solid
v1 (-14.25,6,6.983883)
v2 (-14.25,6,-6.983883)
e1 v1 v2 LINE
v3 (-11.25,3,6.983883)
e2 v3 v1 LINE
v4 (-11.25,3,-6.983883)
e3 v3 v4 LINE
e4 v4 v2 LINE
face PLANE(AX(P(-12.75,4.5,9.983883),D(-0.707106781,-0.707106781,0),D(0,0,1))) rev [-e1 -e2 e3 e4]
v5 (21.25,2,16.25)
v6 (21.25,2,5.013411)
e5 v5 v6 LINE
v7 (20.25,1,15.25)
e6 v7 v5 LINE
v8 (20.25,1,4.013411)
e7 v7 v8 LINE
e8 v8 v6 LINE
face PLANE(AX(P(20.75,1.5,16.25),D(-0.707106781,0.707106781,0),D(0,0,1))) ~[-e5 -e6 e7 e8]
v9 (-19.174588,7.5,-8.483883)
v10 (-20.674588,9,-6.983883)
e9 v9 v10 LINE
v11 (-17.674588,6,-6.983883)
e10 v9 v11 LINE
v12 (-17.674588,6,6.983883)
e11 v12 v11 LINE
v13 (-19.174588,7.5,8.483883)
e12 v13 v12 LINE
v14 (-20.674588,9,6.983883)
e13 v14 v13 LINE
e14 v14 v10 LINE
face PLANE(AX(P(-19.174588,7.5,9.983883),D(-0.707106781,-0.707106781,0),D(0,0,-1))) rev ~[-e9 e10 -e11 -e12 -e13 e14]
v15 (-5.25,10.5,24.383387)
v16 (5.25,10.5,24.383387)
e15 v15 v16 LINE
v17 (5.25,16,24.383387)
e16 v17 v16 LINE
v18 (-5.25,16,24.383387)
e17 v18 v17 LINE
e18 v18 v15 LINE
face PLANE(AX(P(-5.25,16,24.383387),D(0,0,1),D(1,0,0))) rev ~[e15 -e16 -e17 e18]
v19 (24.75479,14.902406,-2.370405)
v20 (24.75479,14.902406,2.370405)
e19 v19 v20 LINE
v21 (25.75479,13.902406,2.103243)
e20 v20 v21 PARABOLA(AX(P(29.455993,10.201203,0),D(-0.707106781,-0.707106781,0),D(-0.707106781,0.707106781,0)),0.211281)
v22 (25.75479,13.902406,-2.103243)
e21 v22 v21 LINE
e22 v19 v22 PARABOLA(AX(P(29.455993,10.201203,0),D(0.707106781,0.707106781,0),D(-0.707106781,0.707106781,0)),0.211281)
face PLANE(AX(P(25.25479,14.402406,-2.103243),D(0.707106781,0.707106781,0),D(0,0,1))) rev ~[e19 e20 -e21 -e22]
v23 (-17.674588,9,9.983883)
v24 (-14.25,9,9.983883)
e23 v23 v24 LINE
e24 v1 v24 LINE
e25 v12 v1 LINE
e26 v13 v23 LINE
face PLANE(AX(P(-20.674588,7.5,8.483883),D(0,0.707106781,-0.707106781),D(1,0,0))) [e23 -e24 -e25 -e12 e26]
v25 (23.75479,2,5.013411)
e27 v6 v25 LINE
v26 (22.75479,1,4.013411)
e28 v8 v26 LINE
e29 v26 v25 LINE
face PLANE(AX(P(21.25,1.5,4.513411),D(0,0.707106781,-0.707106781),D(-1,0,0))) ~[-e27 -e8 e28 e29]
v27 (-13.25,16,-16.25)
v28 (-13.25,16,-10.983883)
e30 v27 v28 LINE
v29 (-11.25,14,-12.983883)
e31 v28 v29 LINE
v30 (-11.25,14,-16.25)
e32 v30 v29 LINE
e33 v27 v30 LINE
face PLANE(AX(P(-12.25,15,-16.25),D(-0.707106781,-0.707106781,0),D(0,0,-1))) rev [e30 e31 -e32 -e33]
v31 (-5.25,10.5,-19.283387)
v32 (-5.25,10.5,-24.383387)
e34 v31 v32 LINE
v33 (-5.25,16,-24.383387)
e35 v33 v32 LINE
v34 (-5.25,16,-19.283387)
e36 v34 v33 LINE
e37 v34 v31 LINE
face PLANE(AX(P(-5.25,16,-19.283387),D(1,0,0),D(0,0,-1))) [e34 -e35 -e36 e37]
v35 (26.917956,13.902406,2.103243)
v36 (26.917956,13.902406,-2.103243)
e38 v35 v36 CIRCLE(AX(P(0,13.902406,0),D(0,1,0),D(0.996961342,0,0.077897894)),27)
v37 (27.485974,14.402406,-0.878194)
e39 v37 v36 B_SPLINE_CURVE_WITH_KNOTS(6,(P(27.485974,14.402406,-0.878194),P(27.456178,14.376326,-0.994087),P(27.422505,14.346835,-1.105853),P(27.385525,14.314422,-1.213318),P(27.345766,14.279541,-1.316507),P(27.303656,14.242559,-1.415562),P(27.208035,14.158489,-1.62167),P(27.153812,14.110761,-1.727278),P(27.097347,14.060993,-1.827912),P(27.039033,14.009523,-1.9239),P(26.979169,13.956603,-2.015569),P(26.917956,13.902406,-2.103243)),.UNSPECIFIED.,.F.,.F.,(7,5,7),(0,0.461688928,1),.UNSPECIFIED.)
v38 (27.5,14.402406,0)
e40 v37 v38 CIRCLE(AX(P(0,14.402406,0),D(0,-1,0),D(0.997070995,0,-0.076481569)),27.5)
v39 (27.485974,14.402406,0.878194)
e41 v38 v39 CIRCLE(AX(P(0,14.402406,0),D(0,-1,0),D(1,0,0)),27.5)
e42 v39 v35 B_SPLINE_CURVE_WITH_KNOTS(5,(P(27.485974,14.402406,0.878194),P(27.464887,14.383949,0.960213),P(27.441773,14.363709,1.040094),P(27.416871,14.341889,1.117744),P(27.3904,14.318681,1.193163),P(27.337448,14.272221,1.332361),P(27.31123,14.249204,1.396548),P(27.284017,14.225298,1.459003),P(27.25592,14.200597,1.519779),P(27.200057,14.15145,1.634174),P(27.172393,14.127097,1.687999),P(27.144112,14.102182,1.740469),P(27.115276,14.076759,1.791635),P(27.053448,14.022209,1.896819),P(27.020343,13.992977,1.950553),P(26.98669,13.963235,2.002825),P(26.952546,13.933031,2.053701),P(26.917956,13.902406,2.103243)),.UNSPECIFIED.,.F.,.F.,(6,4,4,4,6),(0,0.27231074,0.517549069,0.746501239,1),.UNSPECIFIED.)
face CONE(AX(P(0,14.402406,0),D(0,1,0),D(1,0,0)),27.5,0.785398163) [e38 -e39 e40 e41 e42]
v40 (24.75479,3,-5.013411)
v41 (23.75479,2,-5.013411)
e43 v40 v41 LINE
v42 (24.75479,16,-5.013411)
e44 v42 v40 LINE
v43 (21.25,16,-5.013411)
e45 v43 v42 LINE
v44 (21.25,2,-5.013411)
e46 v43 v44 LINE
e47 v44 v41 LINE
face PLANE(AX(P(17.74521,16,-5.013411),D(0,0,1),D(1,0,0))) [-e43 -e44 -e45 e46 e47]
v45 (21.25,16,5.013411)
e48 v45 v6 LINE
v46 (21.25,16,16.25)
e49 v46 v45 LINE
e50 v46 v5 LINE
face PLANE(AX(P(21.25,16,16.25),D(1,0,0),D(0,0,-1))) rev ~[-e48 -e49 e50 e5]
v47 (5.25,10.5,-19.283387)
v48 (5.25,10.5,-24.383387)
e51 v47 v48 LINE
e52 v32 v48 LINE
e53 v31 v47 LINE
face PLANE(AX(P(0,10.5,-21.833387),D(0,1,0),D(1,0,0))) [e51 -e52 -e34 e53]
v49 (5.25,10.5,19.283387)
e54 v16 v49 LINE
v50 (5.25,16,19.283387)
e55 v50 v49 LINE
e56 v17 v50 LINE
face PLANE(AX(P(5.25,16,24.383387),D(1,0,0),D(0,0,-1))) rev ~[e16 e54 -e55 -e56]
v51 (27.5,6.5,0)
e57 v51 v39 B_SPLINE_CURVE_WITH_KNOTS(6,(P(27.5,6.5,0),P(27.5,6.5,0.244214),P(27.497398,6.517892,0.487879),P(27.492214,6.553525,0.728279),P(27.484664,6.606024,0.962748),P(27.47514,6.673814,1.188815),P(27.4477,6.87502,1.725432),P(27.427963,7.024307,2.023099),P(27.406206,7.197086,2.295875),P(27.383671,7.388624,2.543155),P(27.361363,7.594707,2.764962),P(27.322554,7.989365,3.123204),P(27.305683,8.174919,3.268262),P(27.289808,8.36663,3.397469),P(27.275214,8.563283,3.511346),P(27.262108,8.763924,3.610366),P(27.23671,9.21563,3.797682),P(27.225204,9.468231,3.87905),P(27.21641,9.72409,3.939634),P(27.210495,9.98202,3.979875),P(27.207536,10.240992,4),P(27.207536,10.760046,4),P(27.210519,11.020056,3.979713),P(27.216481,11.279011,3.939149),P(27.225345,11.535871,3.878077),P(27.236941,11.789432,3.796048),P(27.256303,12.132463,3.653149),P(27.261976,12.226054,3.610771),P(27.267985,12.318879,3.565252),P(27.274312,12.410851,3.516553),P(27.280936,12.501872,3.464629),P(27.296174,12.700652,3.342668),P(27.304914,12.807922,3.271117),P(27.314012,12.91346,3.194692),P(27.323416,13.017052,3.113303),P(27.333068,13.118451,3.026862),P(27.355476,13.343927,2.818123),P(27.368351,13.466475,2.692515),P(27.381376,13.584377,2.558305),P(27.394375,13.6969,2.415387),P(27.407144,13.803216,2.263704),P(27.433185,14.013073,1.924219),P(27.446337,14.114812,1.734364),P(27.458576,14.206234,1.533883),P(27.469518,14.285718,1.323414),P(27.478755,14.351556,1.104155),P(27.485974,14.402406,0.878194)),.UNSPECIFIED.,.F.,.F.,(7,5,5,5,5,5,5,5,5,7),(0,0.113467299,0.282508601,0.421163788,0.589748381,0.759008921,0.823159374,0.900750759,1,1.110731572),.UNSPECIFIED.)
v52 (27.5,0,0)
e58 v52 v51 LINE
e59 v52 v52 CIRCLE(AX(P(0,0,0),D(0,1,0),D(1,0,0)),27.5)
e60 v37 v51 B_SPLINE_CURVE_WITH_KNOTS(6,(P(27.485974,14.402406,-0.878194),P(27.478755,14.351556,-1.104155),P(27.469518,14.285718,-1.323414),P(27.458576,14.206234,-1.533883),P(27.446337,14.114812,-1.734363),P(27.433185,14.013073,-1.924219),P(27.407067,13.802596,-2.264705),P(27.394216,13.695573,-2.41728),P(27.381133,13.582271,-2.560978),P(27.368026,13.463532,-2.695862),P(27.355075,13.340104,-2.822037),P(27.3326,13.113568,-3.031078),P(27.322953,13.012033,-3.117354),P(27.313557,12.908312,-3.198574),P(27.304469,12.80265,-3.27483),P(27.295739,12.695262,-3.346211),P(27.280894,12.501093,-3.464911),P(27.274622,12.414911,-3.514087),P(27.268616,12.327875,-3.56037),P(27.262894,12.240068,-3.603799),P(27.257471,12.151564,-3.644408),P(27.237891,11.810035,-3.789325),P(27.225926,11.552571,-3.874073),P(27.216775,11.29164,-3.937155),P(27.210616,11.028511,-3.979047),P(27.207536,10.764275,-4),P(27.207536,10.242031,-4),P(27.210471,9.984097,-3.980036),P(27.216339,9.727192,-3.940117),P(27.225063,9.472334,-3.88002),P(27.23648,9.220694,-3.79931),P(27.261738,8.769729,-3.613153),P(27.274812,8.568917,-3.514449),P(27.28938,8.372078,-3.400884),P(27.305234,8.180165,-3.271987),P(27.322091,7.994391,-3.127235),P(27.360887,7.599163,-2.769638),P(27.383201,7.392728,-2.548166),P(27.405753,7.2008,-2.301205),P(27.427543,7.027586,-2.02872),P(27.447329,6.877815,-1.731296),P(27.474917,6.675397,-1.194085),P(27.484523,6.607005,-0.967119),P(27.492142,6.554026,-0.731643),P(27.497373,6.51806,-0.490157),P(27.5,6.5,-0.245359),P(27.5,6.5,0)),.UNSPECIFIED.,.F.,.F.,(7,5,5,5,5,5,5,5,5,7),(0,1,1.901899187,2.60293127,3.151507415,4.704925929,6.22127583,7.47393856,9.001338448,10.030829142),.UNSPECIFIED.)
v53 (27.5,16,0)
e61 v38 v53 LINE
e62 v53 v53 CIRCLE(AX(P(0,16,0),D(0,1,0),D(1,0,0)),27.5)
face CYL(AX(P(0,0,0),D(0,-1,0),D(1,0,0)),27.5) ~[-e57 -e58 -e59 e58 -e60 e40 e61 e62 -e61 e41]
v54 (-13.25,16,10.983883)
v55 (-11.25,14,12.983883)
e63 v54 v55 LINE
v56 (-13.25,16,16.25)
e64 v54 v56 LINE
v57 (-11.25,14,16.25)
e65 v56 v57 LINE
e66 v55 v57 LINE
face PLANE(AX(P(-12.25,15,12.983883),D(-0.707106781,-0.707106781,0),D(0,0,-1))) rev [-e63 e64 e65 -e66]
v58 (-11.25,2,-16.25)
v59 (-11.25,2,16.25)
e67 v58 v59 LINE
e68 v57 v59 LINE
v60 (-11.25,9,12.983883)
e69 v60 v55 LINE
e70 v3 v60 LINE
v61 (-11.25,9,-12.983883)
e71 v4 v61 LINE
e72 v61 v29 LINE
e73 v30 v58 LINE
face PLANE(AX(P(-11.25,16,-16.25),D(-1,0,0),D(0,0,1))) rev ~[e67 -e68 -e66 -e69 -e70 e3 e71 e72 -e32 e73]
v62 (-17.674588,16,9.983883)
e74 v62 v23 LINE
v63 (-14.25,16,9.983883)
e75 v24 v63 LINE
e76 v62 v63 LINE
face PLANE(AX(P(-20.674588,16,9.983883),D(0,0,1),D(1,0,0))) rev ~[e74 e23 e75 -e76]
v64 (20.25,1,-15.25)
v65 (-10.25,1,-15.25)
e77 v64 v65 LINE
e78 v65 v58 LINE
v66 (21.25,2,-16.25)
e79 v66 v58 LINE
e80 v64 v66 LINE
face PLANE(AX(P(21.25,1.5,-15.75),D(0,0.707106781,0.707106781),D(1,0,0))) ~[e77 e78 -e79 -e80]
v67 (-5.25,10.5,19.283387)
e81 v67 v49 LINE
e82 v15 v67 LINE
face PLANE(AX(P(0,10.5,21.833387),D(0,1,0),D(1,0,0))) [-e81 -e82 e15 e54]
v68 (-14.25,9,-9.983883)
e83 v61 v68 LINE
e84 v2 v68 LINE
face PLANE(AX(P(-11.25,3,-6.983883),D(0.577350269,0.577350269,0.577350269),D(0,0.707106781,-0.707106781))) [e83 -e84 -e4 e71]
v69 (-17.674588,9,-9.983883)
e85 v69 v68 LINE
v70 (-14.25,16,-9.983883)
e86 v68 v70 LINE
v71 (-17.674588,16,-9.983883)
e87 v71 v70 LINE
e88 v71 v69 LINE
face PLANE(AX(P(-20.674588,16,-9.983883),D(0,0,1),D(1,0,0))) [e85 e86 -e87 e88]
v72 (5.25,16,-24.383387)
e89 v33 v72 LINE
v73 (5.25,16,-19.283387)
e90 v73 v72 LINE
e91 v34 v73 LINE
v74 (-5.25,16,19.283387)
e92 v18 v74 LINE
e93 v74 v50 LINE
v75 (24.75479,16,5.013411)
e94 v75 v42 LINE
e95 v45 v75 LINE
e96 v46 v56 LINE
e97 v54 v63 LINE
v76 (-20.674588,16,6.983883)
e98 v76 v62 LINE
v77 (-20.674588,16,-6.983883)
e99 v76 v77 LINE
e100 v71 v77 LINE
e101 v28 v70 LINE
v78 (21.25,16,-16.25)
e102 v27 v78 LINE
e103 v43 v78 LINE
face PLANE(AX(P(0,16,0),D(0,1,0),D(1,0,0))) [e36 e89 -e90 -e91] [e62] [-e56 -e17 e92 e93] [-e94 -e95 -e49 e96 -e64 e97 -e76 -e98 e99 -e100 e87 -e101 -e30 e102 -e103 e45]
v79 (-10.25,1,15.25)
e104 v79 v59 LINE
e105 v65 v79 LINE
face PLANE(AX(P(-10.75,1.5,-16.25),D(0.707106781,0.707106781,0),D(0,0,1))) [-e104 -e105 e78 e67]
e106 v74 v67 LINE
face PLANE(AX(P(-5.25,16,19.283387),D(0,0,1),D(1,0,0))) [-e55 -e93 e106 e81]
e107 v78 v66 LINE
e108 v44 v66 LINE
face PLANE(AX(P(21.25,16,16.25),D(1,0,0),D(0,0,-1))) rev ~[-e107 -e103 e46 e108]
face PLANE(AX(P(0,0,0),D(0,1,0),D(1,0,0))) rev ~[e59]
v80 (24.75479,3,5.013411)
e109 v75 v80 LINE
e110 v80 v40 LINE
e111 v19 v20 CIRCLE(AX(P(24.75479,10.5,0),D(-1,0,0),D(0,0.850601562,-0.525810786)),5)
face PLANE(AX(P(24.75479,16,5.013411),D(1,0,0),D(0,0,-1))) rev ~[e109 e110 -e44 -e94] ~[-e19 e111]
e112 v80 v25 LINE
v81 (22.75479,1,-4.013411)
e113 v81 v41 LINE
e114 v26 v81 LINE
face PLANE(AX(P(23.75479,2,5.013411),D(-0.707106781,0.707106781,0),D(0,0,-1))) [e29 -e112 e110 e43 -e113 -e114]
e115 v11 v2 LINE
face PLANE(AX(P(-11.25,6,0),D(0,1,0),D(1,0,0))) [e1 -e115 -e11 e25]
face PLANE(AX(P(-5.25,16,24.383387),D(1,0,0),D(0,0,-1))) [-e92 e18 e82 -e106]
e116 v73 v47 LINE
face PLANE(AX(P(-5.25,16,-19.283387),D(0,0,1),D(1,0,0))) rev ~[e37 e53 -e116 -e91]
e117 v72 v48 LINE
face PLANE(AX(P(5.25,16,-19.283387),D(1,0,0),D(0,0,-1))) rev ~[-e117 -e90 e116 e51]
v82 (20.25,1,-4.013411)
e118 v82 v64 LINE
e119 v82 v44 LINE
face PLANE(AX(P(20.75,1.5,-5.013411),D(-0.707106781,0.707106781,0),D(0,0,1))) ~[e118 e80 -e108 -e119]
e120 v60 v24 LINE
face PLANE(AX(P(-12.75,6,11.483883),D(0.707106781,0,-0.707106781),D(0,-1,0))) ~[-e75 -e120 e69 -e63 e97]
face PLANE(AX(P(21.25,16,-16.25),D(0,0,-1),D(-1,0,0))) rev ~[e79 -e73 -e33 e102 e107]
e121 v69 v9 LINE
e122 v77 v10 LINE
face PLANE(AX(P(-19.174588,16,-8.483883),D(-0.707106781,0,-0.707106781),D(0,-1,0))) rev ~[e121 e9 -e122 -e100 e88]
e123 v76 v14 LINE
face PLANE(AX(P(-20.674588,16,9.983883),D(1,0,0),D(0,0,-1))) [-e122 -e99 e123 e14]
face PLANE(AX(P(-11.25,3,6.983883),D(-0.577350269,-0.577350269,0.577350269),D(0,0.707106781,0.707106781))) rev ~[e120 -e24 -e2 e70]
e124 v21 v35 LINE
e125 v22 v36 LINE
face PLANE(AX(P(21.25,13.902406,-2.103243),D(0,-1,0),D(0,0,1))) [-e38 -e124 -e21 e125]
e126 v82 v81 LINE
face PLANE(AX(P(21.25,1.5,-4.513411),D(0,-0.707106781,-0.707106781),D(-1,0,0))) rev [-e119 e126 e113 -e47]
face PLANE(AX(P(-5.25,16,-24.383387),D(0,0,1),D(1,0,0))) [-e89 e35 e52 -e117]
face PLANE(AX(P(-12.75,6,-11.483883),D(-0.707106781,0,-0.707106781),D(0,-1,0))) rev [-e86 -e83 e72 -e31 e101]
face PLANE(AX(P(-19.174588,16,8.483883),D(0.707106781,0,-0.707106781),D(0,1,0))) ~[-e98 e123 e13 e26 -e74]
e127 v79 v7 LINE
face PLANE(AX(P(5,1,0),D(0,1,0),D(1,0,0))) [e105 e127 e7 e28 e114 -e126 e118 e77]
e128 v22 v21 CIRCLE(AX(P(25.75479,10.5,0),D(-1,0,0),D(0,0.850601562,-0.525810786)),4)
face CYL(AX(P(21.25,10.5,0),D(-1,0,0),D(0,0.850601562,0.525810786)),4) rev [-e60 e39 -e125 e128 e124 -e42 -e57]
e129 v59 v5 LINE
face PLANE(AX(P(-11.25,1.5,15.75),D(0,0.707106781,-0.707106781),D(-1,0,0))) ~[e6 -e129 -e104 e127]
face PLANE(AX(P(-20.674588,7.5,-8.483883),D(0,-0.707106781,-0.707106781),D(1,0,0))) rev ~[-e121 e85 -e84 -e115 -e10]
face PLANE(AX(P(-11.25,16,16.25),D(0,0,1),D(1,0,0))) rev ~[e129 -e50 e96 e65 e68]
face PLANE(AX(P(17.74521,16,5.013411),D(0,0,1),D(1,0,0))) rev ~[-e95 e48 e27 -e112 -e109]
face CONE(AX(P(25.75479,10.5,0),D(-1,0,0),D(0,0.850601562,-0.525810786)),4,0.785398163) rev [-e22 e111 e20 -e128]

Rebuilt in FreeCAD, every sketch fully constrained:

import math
import FreeCAD as App
import Part
import Sketcher


def edges_at(feature, points):
    """Names of the edges that pass closest to the given points."""
    edges = feature.Shape.Edges
    near = lambda p: min(range(len(edges)), key=lambda i: edges[i].distToShape(Part.Vertex(*p))[0])
    return sorted({f"Edge{near(p) + 1}" for p in points})

doc = App.newDocument("Part")
body = doc.addObject("PartDesign::Body", "Body")

sketch1 = body.newObject("Sketcher::SketchObject", "Sketch")
sketch1.AttachmentSupport = (doc.getObject("XZ_Plane"), [""])
sketch1.MapMode = "FlatFace"
sketch1.addGeometry(Part.Circle(App.Vector(0, 0, 0), App.Vector(0, 0, 1), 27.5), False)
sketch1.addConstraint([
    Sketcher.Constraint("Coincident", 0, 3, -1, 1),
    Sketcher.Constraint("Diameter", 0, 55.0),
])
pad1 = body.newObject("PartDesign::Pad", "Pad")
pad1.Profile = sketch1
pad1.Length = 16
pad1.Reversed = True

sketch2 = body.newObject("Sketcher::SketchObject", "Sketch001")
sketch2.AttachmentSupport = (doc.getObject("XZ_Plane"), [""])
sketch2.MapMode = "FlatFace"
sketch2.AttachmentOffset = App.Placement(App.Vector(0, 0, -16), App.Rotation())
sketch2.addGeometry([
    Part.LineSegment(App.Vector(-11.25, 16.25, 0), App.Vector(21.25, 16.25, 0)),
    Part.LineSegment(App.Vector(21.25, 16.25, 0), App.Vector(21.25, -16.25, 0)),
    Part.LineSegment(App.Vector(21.25, -16.25, 0), App.Vector(-11.25, -16.25, 0)),
    Part.LineSegment(App.Vector(-11.25, -16.25, 0), App.Vector(-11.25, 16.25, 0)),
], False)
sketch2.addConstraint([
    Sketcher.Constraint("Coincident", 0, 2, 1, 1),
    Sketcher.Constraint("Coincident", 1, 2, 2, 1),
    Sketcher.Constraint("Coincident", 2, 2, 3, 1),
    Sketcher.Constraint("Coincident", 3, 2, 0, 1),
    Sketcher.Constraint("Horizontal", 0),
    Sketcher.Constraint("Vertical", 1),
    Sketcher.Constraint("Horizontal", 2),
    Sketcher.Constraint("Vertical", 3),
    Sketcher.Constraint("Equal", 2, 1),
    Sketcher.Constraint("DistanceX", 0, 1, 0, 2, 32.5),
    Sketcher.Constraint("DistanceX", -1, 1, 0, 2, 21.25),
    Sketcher.Constraint("DistanceY", -1, 1, 0, 2, 16.25),
])
pocket1 = body.newObject("PartDesign::Pocket", "Pocket")
pocket1.Profile = sketch2
pocket1.Length = 15
pocket1.Reversed = True

sketch3 = body.newObject("Sketcher::SketchObject", "Sketch002")
sketch3.AttachmentSupport = (doc.getObject("YZ_Plane"), [""])
sketch3.MapMode = "FlatFace"
sketch3.AttachmentOffset = App.Placement(App.Vector(0, 0, 21.25), App.Rotation())
sketch3.addGeometry([
    Part.LineSegment(App.Vector(13.902406, 2.103243, 0), App.Vector(13.902406, -2.103243, 0)),
    Part.ArcOfCircle(Part.Circle(App.Vector(10.5, 0, 0), App.Vector(0, 0, 1), 4), math.radians(31.722841), math.radians(328.277159)),
], False)
sketch3.addConstraint([
    Sketcher.Constraint("Coincident", 0, 1, 1, 1),
    Sketcher.Constraint("Coincident", 1, 2, 0, 2),
    Sketcher.Constraint("Vertical", 0),
    Sketcher.Constraint("PointOnObject", 1, 3, -1),
    Sketcher.Constraint("Radius", 1, 4.0),
    Sketcher.Constraint("DistanceX", -1, 1, 1, 3, 10.5),
    Sketcher.Constraint("DistanceY", 0, 2, 0, 1, 4.206486),
])
pocket2 = body.newObject("PartDesign::Pocket", "Pocket001")
pocket2.Profile = sketch3
pocket2.Length = 15
pocket2.Reversed = True

sketch4 = body.newObject("Sketcher::SketchObject", "Sketch003")
sketch4.AttachmentSupport = (doc.getObject("XZ_Plane"), [""])
sketch4.MapMode = "FlatFace"
sketch4.AttachmentOffset = App.Placement(App.Vector(0, 0, -16), App.Rotation())
sketch4.addGeometry([
    Part.LineSegment(App.Vector(-20.674588, -9.983883, 0), App.Vector(-20.674588, 9.983883, 0)),
    Part.LineSegment(App.Vector(-20.674588, 9.983883, 0), App.Vector(-1.825412, 9.983883, 0)),
    Part.LineSegment(App.Vector(-1.825412, 9.983883, 0), App.Vector(-1.825412, -9.983883, 0)),
    Part.LineSegment(App.Vector(-1.825412, -9.983883, 0), App.Vector(-20.674588, -9.983883, 0)),
], False)
sketch4.addConstraint([
    Sketcher.Constraint("Coincident", 0, 2, 1, 1),
    Sketcher.Constraint("Coincident", 1, 2, 2, 1),
    Sketcher.Constraint("Coincident", 2, 2, 3, 1),
    Sketcher.Constraint("Coincident", 3, 2, 0, 1),
    Sketcher.Constraint("Vertical", 0),
    Sketcher.Constraint("Horizontal", 1),
    Sketcher.Constraint("Vertical", 2),
    Sketcher.Constraint("Horizontal", 3),
    Sketcher.Constraint("DistanceX", 1, 1, 1, 2, 18.849177),
    Sketcher.Constraint("DistanceY", 0, 1, 0, 2, 19.967767),
    Sketcher.Constraint("DistanceX", 0, 2, -1, 1, 20.674588),
    Sketcher.Constraint("DistanceY", -1, 1, 0, 2, 9.983883),
])
pocket3 = body.newObject("PartDesign::Pocket", "Pocket002")
pocket3.Profile = sketch4
pocket3.Length = 10
pocket3.Reversed = True
doc.recompute()

chamfer = body.newObject("PartDesign::Chamfer", "Chamfer")
chamfer.Base = (pocket3, edges_at(pocket3, [
    (-11.25, 6, 0),
    (-11.25, 11, -9.984),
    (-11.25, 11, 9.984),
    (-15.962, 6, 9.984),
    (-15.962, 6, -9.984),
    (-20.675, 6, 0),
]))
chamfer.Size = 3
doc.recompute()

chamfer2 = body.newObject("PartDesign::Chamfer", "Chamfer001")
chamfer2.Base = (chamfer, edges_at(chamfer, [(-20.675, 12.5, 9.984), (-20.675, 12.5, -9.984)]))
chamfer2.Size = 3

sketch5 = body.newObject("Sketcher::SketchObject", "Sketch004")
sketch5.AttachmentSupport = (doc.getObject("XZ_Plane"), [""])
sketch5.MapMode = "FlatFace"
sketch5.AttachmentOffset = App.Placement(App.Vector(0, 0, -16), App.Rotation())
sketch5.addGeometry([
    Part.LineSegment(App.Vector(17.74521, -5.013411, 0), App.Vector(17.74521, 5.013411, 0)),
    Part.LineSegment(App.Vector(17.74521, 5.013411, 0), App.Vector(24.75479, 5.013411, 0)),
    Part.LineSegment(App.Vector(24.75479, 5.013411, 0), App.Vector(24.75479, -5.013411, 0)),
    Part.LineSegment(App.Vector(24.75479, -5.013411, 0), App.Vector(17.74521, -5.013411, 0)),
], False)
sketch5.addConstraint([
    Sketcher.Constraint("Coincident", 0, 2, 1, 1),
    Sketcher.Constraint("Coincident", 1, 2, 2, 1),
    Sketcher.Constraint("Coincident", 2, 2, 3, 1),
    Sketcher.Constraint("Coincident", 3, 2, 0, 1),
    Sketcher.Constraint("Vertical", 0),
    Sketcher.Constraint("Horizontal", 1),
    Sketcher.Constraint("Vertical", 2),
    Sketcher.Constraint("Horizontal", 3),
    Sketcher.Constraint("DistanceX", 1, 1, 1, 2, 7.00958),
    Sketcher.Constraint("DistanceY", 0, 1, 0, 2, 10.026822),
    Sketcher.Constraint("DistanceX", -1, 1, 0, 2, 17.74521),
    Sketcher.Constraint("DistanceY", -1, 1, 0, 2, 5.013411),
])
pocket4 = body.newObject("PartDesign::Pocket", "Pocket003")
pocket4.Profile = sketch5
pocket4.Length = 15
pocket4.Reversed = True
doc.recompute()

chamfer3 = body.newObject("PartDesign::Chamfer", "Chamfer002")
chamfer3.Base = (pocket4, edges_at(pocket4, [(24.755, 6.5, 0), (24.755, 13.902, 0)]))
chamfer3.Size = 1
doc.recompute()

chamfer4 = body.newObject("PartDesign::Chamfer", "Chamfer003")
chamfer4.Base = (chamfer3, edges_at(chamfer3, [(24.755, 1, 0)]))
chamfer4.Size = 2
doc.recompute()

chamfer5 = body.newObject("PartDesign::Chamfer", "Chamfer004")
chamfer5.Base = (chamfer4, edges_at(chamfer4, [(-11.25, 16, -14.617), (-11.25, 16, 14.617)]))
chamfer5.Size = 2
doc.recompute()

chamfer6 = body.newObject("PartDesign::Chamfer", "Chamfer005")
chamfer6.Base = (chamfer5, edges_at(chamfer5, [
    (22.002, 1, 5.013),
    (22.002, 1, -5.013),
    (5, 1, -16.25),
    (21.25, 1, 10.632),
    (5, 1, 16.25),
    (-11.25, 1, 0),
    (21.25, 1, -10.632),
]))
chamfer6.Size = 1
doc.recompute()

chamfer7 = body.newObject("PartDesign::Chamfer", "Chamfer006")
chamfer7.Base = (chamfer6, edges_at(chamfer6, [(27.48, 13.902, 1.052)]))
chamfer7.Size = 0.5

sketch6 = body.newObject("Sketcher::SketchObject", "Sketch005")
sketch6.AttachmentSupport = (doc.getObject("XZ_Plane"), [""])
sketch6.MapMode = "FlatFace"
sketch6.AttachmentOffset = App.Placement(App.Vector(0, 0, -16), App.Rotation())
sketch6.addGeometry([
    Part.LineSegment(App.Vector(-5.25, -24.383387, 0), App.Vector(-5.25, -19.283387, 0)),
    Part.LineSegment(App.Vector(-5.25, -19.283387, 0), App.Vector(5.25, -19.283387, 0)),
    Part.LineSegment(App.Vector(5.25, -19.283387, 0), App.Vector(5.25, -24.383387, 0)),
    Part.LineSegment(App.Vector(5.25, -24.383387, 0), App.Vector(-5.25, -24.383387, 0)),
    Part.LineSegment(App.Vector(-5.25, 19.283387, 0), App.Vector(-5.25, 24.383387, 0)),
    Part.LineSegment(App.Vector(-5.25, 24.383387, 0), App.Vector(5.25, 24.383387, 0)),
    Part.LineSegment(App.Vector(5.25, 24.383387, 0), App.Vector(5.25, 19.283387, 0)),
    Part.LineSegment(App.Vector(5.25, 19.283387, 0), App.Vector(-5.25, 19.283387, 0)),
], False)
sketch6.addConstraint([
    Sketcher.Constraint("Coincident", 0, 2, 1, 1),
    Sketcher.Constraint("Coincident", 1, 2, 2, 1),
    Sketcher.Constraint("Coincident", 2, 2, 3, 1),
    Sketcher.Constraint("Coincident", 3, 2, 0, 1),
    Sketcher.Constraint("Coincident", 4, 2, 5, 1),
    Sketcher.Constraint("Coincident", 5, 2, 6, 1),
    Sketcher.Constraint("Coincident", 6, 2, 7, 1),
    Sketcher.Constraint("Coincident", 7, 2, 4, 1),
    Sketcher.Constraint("Vertical", 0),
    Sketcher.Constraint("Horizontal", 1),
    Sketcher.Constraint("Vertical", 2),
    Sketcher.Constraint("Horizontal", 3),
    Sketcher.Constraint("Vertical", 4),
    Sketcher.Constraint("Horizontal", 5),
    Sketcher.Constraint("Vertical", 6),
    Sketcher.Constraint("Horizontal", 7),
    Sketcher.Constraint("Symmetric", 2, 2, 4, 2, -1, 1),
    Sketcher.Constraint("Symmetric", 0, 2, 6, 2, -1, 1),
    Sketcher.Constraint("Vertical", 3, 2, 4, 2),
    Sketcher.Constraint("DistanceX", 1, 1, 1, 2, 10.5),
    Sketcher.Constraint("DistanceY", 0, 1, 0, 2, 5.1),
    Sketcher.Constraint("DistanceY", 0, 2, -1, 1, 19.283387),
])
pocket5 = body.newObject("PartDesign::Pocket", "Pocket004")
pocket5.Profile = sketch6
pocket5.Length = 5.5
pocket5.Reversed = True

doc.recompute()
